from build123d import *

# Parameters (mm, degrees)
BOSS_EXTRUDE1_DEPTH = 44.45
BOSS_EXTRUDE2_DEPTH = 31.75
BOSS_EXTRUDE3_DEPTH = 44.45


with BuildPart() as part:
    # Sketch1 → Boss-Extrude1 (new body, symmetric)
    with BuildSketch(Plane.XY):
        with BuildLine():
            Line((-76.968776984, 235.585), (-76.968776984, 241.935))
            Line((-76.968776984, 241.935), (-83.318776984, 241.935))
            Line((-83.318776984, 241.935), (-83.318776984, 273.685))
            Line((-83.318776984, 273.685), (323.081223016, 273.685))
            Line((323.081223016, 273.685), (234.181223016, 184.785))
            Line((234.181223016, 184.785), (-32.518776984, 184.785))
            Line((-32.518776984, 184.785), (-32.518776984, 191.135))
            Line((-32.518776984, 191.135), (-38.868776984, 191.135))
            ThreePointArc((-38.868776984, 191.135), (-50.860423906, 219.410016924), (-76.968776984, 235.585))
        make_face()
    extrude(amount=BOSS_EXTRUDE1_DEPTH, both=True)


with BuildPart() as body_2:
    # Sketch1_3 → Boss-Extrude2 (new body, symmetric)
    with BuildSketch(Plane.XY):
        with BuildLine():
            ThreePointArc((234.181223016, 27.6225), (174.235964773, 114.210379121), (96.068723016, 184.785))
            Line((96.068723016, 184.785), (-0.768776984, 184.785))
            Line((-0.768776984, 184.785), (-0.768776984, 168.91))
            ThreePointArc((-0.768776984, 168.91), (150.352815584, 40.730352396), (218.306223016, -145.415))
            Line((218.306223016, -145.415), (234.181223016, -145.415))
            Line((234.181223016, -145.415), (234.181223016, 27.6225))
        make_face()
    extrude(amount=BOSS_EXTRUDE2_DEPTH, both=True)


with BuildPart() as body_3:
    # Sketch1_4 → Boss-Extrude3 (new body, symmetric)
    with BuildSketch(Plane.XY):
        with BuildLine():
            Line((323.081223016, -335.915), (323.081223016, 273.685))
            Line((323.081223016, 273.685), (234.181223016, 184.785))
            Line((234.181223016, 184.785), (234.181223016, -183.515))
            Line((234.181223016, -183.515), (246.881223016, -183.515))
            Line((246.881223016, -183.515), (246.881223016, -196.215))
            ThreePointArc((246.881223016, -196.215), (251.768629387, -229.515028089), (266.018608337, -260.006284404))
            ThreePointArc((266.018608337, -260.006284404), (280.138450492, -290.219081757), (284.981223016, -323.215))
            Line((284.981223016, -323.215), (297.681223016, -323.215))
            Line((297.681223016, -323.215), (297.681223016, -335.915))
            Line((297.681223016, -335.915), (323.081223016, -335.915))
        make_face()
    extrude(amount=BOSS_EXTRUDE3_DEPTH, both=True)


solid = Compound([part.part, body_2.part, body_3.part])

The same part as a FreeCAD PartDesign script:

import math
import FreeCAD as App
import Part
import Sketcher

V = App.Vector
Q = App.Units.Quantity

doc = App.newDocument("Part")
body = doc.addObject("PartDesign::Body", "Body")

# Sketch on XY plane
sketch1 = body.newObject("Sketcher::SketchObject", "Sketch")
sketch1.AttachmentSupport = (doc.getObject("XY_Plane"), [""])
sketch1.MapMode = "FlatFace"
sketch1.addGeometry([
    Part.LineSegment(V(-77, 242, 0), V(-77, 236, 0)),  # 0
    Part.ArcOfCircle(Part.Circle(V(-89, 186, 0), V(0, 0, 1), 51), math.radians(5), math.radians(76)),  # 1
    Part.LineSegment(V(-39, 191, 0), V(-33, 191, 0)),  # 2
    Part.LineSegment(V(-33, 191, 0), V(-33, 185, 0)),  # 3
    Part.LineSegment(V(-33, 185, 0), V(234, 185, 0)),  # 4
    Part.LineSegment(V(234, 185, 0), V(323, 274, 0)),  # 5
    Part.LineSegment(V(323, 274, 0), V(-83, 274, 0)),  # 6
    Part.LineSegment(V(-83, 274, 0), V(-83, 242, 0)),  # 7
    Part.LineSegment(V(-83, 242, 0), V(-77, 242, 0)),  # 8
], False)
sketch1.addConstraint([
    Sketcher.Constraint("Coincident", 0, 2, 1, 2),
    Sketcher.Constraint("Coincident", 1, 1, 2, 1),
    Sketcher.Constraint("Coincident", 2, 2, 3, 1),
    Sketcher.Constraint("Coincident", 3, 2, 4, 1),
    Sketcher.Constraint("Coincident", 4, 2, 5, 1),
    Sketcher.Constraint("Coincident", 5, 2, 6, 1),
    Sketcher.Constraint("Coincident", 6, 2, 7, 1),
    Sketcher.Constraint("Coincident", 7, 2, 8, 1),
    Sketcher.Constraint("Coincident", 8, 2, 0, 1),
    Sketcher.Constraint("Vertical", 0),
    Sketcher.Constraint("Horizontal", 2),
    Sketcher.Constraint("Vertical", 3),
    Sketcher.Constraint("Horizontal", 4),
    Sketcher.Constraint("Horizontal", 6),
    Sketcher.Constraint("Vertical", 7),
    Sketcher.Constraint("Horizontal", 8),
    Sketcher.Constraint("Equal", 2, 8),
    Sketcher.Constraint("Equal", 8, 0),
    Sketcher.Constraint("Equal", 0, 3),
    Sketcher.Constraint("DistanceX", 6, 2, 6, 1, Q("16 in")),
    Sketcher.Constraint("DistanceX", 4, 1, 4, 2, Q("10.5 in")),
    Sketcher.Constraint("Angle", 5, Q("45 deg")),
    Sketcher.Constraint("DistanceY", 3, 2, 0, 2, Q("2 in")),
    Sketcher.Constraint("DistanceX", 2, 2, 5, 2, Q("14 in")),
    Sketcher.Constraint("DistanceX", 2, 1, 2, 2, Q("0.25 in")),
    Sketcher.Constraint("DistanceY", -1, 1, 0, 2, Q("9.275 in")),
    Sketcher.Constraint("Radius", 1, Q("50.733412 mm")),
    Sketcher.Constraint("DistanceX", 1, 3, -1, 1, Q("89.380102 mm")),
])
pad1 = body.newObject("PartDesign::Pad", "Pad")
pad1.Profile = sketch1
pad1.Length = Q("3.5 in")
pad1.Midplane = True
body2 = doc.addObject("PartDesign::Body", "Body001")

# Sketch on XY plane
sketch2 = body2.newObject("Sketcher::SketchObject", "Sketch001")
sketch2.AttachmentSupport = (doc.getObject("XY_Plane001"), [""])
sketch2.MapMode = "FlatFace"
sketch2.addGeometry([
    Part.ArcOfCircle(Part.Circle(V(-169, -188, 0), V(0, 0, 1), 457), math.radians(28), math.radians(55)),  # 0
    Part.LineSegment(V(96, 185, 0), V(-1, 185, 0)),  # 1
    Part.LineSegment(V(-1, 185, 0), V(-1, 169, 0)),  # 2
    Part.ArcOfCircle(Part.Circle(V(-167, -181, 0), V(0, 0, 1), 387), math.radians(5), math.radians(65)),  # 3
    Part.LineSegment(V(218, -145, 0), V(234, -145, 0)),  # 4
    Part.LineSegment(V(234, -145, 0), V(234, 28, 0)),  # 5
], False)
sketch2.addConstraint([
    Sketcher.Constraint("Coincident", 0, 2, 1, 1),
    Sketcher.Constraint("Coincident", 1, 2, 2, 1),
    Sketcher.Constraint("Coincident", 2, 2, 3, 2),
    Sketcher.Constraint("Coincident", 3, 1, 4, 1),
    Sketcher.Constraint("Coincident", 4, 2, 5, 1),
    Sketcher.Constraint("Coincident", 5, 2, 0, 1),
    Sketcher.Constraint("Horizontal", 1),
    Sketcher.Constraint("Vertical", 2),
    Sketcher.Constraint("Horizontal", 4),
    Sketcher.Constraint("Vertical", 5),
    Sketcher.Constraint("Equal", 4, 2),
    Sketcher.Constraint("Radius", 0, Q("18 in")),
    Sketcher.Constraint("Radius", 3, Q("15.25 in")),
    Sketcher.Constraint("DistanceY", 4, 2, 0, 2, Q("13 in")),
    Sketcher.Constraint("DistanceX", 1, 2, 1, 1, Q("3.8125 in")),
    Sketcher.Constraint("DistanceX", 4, 1, 4, 2, Q("0.625 in")),
    Sketcher.Constraint("DistanceY", 5, 1, 5, 2, Q("6.8125 in")),
    Sketcher.Constraint("DistanceY", -1, 1, 2, 2, Q("6.65 in")),
    Sketcher.Constraint("DistanceX", 2, 2, 4, 2, Q("9.25 in")),
    Sketcher.Constraint("DistanceX", 0, 3, -1, 1, Q("169.196627 mm")),
])
pad2 = body2.newObject("PartDesign::Pad", "Pad001")
pad2.Profile = sketch2
pad2.Length = Q("2.5 in")
pad2.Midplane = True
body3 = doc.addObject("PartDesign::Body", "Body002")

# Sketch on XY plane
sketch3 = body3.newObject("Sketcher::SketchObject", "Sketch002")
sketch3.AttachmentSupport = (doc.getObject("XY_Plane002"), [""])
sketch3.MapMode = "FlatFace"
sketch3.addGeometry([
    Part.LineSegment(V(323, -336, 0), V(323, 274, 0)),  # 0
    Part.LineSegment(V(323, 274, 0), V(234, 185, 0)),  # 1
    Part.LineSegment(V(234, 185, 0), V(234, -184, 0)),  # 2
    Part.LineSegment(V(234, -184, 0), V(247, -184, 0)),  # 3
    Part.LineSegment(V(247, -184, 0), V(247, -196, 0)),  # 4
    Part.ArcOfCircle(Part.Circle(V(363, -196, 0), V(0, 0, 1), 116), math.radians(180), math.radians(213)),  # 5
    Part.ArcOfCircle(Part.Circle(V(170, -323, 0), V(0, 0, 1), 115), math.radians(0), math.radians(33)),  # 6
    Part.LineSegment(V(285, -323, 0), V(298, -323, 0)),  # 7
    Part.LineSegment(V(298, -323, 0), V(298, -336, 0)),  # 8
    Part.LineSegment(V(298, -336, 0), V(323, -336, 0)),  # 9
], False)
sketch3.addConstraint([
    Sketcher.Constraint("Coincident", 0, 2, 1, 1),
    Sketcher.Constraint("Coincident", 1, 2, 2, 1),
    Sketcher.Constraint("Coincident", 2, 2, 3, 1),
    Sketcher.Constraint("Coincident", 3, 2, 4, 1),
    Sketcher.Constraint("Tangent", 4, 2, 5, 1),
    Sketcher.Constraint("Tangent", 5, 2, 6, 2),
    Sketcher.Constraint("Coincident", 6, 1, 7, 1),
    Sketcher.Constraint("Coincident", 7, 2, 8, 1),
    Sketcher.Constraint("Coincident", 8, 2, 9, 1),
    Sketcher.Constraint("Coincident", 9, 2, 0, 1),
    Sketcher.Constraint("Vertical", 0),
    Sketcher.Constraint("Vertical", 2),
    Sketcher.Constraint("Horizontal", 3),
    Sketcher.Constraint("Vertical", 4),
    Sketcher.Constraint("Horizontal", 7),
    Sketcher.Constraint("Vertical", 8),
    Sketcher.Constraint("Horizontal", 9),
    Sketcher.Constraint("Equal", 3, 7),
    Sketcher.Constraint("Equal", 7, 4),
    Sketcher.Constraint("Equal", 4, 8),
    Sketcher.Constraint("DistanceX", 9, 1, 9, 2, Q("1 in")),
    Sketcher.Constraint("DistanceY", 0, 1, 0, 2, Q("24 in")),
    Sketcher.Constraint("DistanceX", 3, 1, 3, 2, Q("0.5 in")),
    Sketcher.Constraint("DistanceY", 2, 2, 2, 1, Q("14.5 in")),
    Sketcher.Constraint("Angle", 1, Q("-135 deg")),
    Sketcher.Constraint("Radius", 5, Q("4.5625 in")),
    Sketcher.Constraint("DistanceY", 6, 3, 5, 3, Q("5 in")),
    Sketcher.Constraint("DistanceY", 2, 2, 0, 2, Q("18 in")),
    Sketcher.Constraint("DistanceY", 5, 3, -1, 1, Q("7.725 in")),
    Sketcher.Constraint("DistanceX", -1, 1, 6, 3, Q("6.6988999 in")),
])
pad3 = body3.newObject("PartDesign::Pad", "Pad002")
pad3.Profile = sketch3
pad3.Length = Q("3.5 in")
pad3.Midplane = True

doc.recompute()
